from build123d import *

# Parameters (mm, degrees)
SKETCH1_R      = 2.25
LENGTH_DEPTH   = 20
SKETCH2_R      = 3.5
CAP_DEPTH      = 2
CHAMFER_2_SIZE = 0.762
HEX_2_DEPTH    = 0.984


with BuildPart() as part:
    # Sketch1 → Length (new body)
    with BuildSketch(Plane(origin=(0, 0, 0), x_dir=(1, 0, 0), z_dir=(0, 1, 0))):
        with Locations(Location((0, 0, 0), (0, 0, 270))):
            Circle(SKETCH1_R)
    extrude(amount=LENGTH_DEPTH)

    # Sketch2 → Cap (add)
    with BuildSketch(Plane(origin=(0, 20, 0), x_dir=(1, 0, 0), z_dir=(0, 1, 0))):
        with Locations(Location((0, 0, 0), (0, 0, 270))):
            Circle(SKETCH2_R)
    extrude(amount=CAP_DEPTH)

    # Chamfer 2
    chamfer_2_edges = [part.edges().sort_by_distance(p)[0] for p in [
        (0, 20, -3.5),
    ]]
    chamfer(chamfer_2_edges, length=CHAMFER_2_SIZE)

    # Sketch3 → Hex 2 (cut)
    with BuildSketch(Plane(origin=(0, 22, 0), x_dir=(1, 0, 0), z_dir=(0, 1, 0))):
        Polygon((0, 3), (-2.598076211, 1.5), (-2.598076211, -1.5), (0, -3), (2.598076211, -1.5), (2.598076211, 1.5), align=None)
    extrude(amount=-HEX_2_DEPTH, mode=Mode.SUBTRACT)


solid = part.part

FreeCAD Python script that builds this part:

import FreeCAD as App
import Part
import Sketcher
Q = App.Units.Quantity


def edges_at(feature, points):
    """Names of the edges that pass closest to the given points."""
    edges = feature.Shape.Edges
    near = lambda p: min(range(len(edges)), key=lambda i: edges[i].distToShape(Part.Vertex(*p))[0])
    return sorted({f"Edge{near(p) + 1}" for p in points})


def add_polygon(sketch, points):
    """Adds a closed chain of lines whose ends are joined by coincident constraints."""
    first, n = sketch.GeometryCount, len(points)
    for a, b in zip(points, points[1:] + points[:1]):
        sketch.addGeometry(Part.LineSegment(App.Vector(*a, 0), App.Vector(*b, 0)), False)
    for i in range(n):
        sketch.addConstraint(Sketcher.Constraint("Coincident", first + i, 2, first + (i + 1) % n, 1))

doc = App.newDocument("Part")
body = doc.addObject("PartDesign::Body", "Body")

# Sketch on XZ plane
sketch1 = body.newObject("Sketcher::SketchObject", "Sketch")
sketch1.AttachmentSupport = (doc.getObject("XZ_Plane"), [""])
sketch1.MapMode = "FlatFace"
sketch1.addGeometry(Part.Circle(App.Vector(0, 0, 0), App.Vector(0, 0, 1), 2.2), False)
sketch1.addConstraint([
    Sketcher.Constraint("Coincident", 0, 3, -1, 1),
    Sketcher.Constraint("Diameter", 0, Q("4.5 mm")),
])
pad1 = body.newObject("PartDesign::Pad", "Pad")
pad1.Profile = sketch1
pad1.Length = 20
pad1.Reversed = True

# Sketch on XZ plane
sketch2 = body.newObject("Sketcher::SketchObject", "Sketch001")
sketch2.AttachmentSupport = (doc.getObject("XZ_Plane"), [""])
sketch2.MapMode = "FlatFace"
sketch2.AttachmentOffset = App.Placement(App.Vector(0, 0, -20), App.Rotation())
sketch2.addGeometry(Part.Circle(App.Vector(0, 0, 0), App.Vector(0, 0, 1), 3.5), False)
sketch2.addConstraint([
    Sketcher.Constraint("Coincident", 0, 3, -1, 1),
    Sketcher.Constraint("Diameter", 0, Q("7 mm")),
])
pad2 = body.newObject("PartDesign::Pad", "Pad001")
pad2.Profile = sketch2
pad2.Length = 2
pad2.Reversed = True
doc.recompute()

chamfer = body.newObject("PartDesign::Chamfer", "Chamfer")
chamfer.Base = (pad2, edges_at(pad2, [(0, 20, -3.5)]))
chamfer.Size = 0.762

# Sketch on XZ plane
sketch3 = body.newObject("Sketcher::SketchObject", "Sketch002")
sketch3.AttachmentSupport = (doc.getObject("XZ_Plane"), [""])
sketch3.MapMode = "FlatFace"
sketch3.AttachmentOffset = App.Placement(App.Vector(0, 0, -22), App.Rotation())
add_polygon(sketch3, [(0, -3), (-2.6, -1.5), (-2.6, 1.5), (0, 3), (2.6, 1.5), (2.6, -1.5)])  # lines 0-5
sketch3.addConstraint([
    Sketcher.Constraint("Vertical", 1),
    Sketcher.Constraint("Vertical", 4),
    Sketcher.Constraint("Symmetric", 0, 2, 3, 2, -1, 1),
    Sketcher.Constraint("Symmetric", 2, 2, 5, 2, -1, 1),
    Sketcher.Constraint("PointOnObject", 2, 2, -2),
    Sketcher.Constraint("Parallel", 2, 5),
    Sketcher.Constraint("Horizontal", 1, 2, 3, 2),
    Sketcher.Constraint("DistanceY", 1, 1, 1, 2, Q("3 mm")),
    Sketcher.Constraint("Angle", 0, Q("150 deg")),
    Sketcher.Constraint("Distance", 0, Q("3 mm")),
])
pocket1 = body.newObject("PartDesign::Pocket", "Pocket")
pocket1.Profile = sketch3
pocket1.Length = 0.984
pocket1.Reversed = True

doc.recompute()
